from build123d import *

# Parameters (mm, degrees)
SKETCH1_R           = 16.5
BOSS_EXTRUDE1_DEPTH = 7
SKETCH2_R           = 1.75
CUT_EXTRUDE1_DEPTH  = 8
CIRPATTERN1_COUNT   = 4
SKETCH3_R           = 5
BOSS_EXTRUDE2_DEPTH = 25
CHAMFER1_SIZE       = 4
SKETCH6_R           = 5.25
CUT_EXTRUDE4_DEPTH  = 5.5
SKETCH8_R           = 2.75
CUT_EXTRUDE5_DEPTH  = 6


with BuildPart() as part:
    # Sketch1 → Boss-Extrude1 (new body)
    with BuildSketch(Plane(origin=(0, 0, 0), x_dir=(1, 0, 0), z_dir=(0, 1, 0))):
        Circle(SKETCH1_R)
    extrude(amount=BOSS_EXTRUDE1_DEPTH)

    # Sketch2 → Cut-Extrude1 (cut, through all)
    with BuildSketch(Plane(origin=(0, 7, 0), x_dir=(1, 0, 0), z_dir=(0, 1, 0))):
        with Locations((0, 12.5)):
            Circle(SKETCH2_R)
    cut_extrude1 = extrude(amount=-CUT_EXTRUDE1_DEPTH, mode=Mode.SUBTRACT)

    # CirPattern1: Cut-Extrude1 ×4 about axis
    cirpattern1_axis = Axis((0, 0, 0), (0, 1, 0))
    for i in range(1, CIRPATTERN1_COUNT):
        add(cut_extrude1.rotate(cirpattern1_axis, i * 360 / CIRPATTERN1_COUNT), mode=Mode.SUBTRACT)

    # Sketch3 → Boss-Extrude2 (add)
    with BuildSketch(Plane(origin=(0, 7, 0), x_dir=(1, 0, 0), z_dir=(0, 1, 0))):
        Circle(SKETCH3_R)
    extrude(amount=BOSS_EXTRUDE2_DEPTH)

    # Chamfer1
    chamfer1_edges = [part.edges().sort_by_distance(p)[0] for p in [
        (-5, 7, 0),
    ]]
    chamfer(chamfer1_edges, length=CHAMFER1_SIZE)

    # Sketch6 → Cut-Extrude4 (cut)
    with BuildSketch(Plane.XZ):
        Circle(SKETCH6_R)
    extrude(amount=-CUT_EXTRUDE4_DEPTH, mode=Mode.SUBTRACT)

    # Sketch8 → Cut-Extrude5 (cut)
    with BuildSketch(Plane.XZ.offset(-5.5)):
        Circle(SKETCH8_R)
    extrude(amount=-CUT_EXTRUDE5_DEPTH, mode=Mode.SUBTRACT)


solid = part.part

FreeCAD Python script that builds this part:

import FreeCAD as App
import Part
import Sketcher

V = App.Vector


def edges_at(feature, points):
    """Names of the edges that pass closest to the given points."""
    edges = feature.Shape.Edges
    near = lambda p: min(range(len(edges)), key=lambda i: edges[i].distToShape(Part.Vertex(*p))[0])
    return sorted({f"Edge{near(p) + 1}" for p in points})

doc = App.newDocument("Part")
body = doc.addObject("PartDesign::Body", "Body")

# Sketch on XZ plane
sketch1 = body.newObject("Sketcher::SketchObject", "Sketch")
sketch1.AttachmentSupport = (doc.getObject("XZ_Plane"), [""])
sketch1.MapMode = "FlatFace"
sketch1.addGeometry(Part.Circle(V(0, 0, 0), V(0, 0, 1), 16.5), False)
sketch1.addConstraint([
    Sketcher.Constraint("Coincident", 0, 3, -1, 1),
    Sketcher.Constraint("Diameter", 0, 33.0),
])
pad1 = body.newObject("PartDesign::Pad", "Pad")
pad1.Profile = sketch1
pad1.Length = 7
pad1.Reversed = True

# Sketch on XZ plane
sketch2 = body.newObject("Sketcher::SketchObject", "Sketch001")
sketch2.AttachmentSupport = (doc.getObject("XZ_Plane"), [""])
sketch2.MapMode = "FlatFace"
sketch2.AttachmentOffset = App.Placement(V(0, 0, -7), App.Rotation())
sketch2.addGeometry(Part.Circle(V(0, -12.5, 0), V(0, 0, 1), 1.75), False)
sketch2.addConstraint([
    Sketcher.Constraint("PointOnObject", 0, 3, -2),
    Sketcher.Constraint("Diameter", 0, 3.5),
    Sketcher.Constraint("DistanceY", 0, 3, -1, 1, 12.5),
])
pocket1 = body.newObject("PartDesign::Pocket", "Pocket")
pocket1.Profile = sketch2
pocket1.Type = "ThroughAll"
pocket1.Reversed = True
doc.recompute()

polarpattern = body.newObject("PartDesign::PolarPattern", "PolarPattern")
polarpattern.Originals = [pocket1]
polarpattern.Axis = (doc.getObject("Y_Axis"), [""])
polarpattern.Angle = 360
polarpattern.Occurrences = 4
body.Tip = polarpattern

# Sketch on XZ plane
sketch3 = body.newObject("Sketcher::SketchObject", "Sketch002")
sketch3.AttachmentSupport = (doc.getObject("XZ_Plane"), [""])
sketch3.MapMode = "FlatFace"
sketch3.AttachmentOffset = App.Placement(V(0, 0, -7), App.Rotation())
sketch3.addGeometry(Part.Circle(V(0, 0, 0), V(0, 0, 1), 5), False)
sketch3.addConstraint([
    Sketcher.Constraint("Coincident", 0, 3, -1, 1),
    Sketcher.Constraint("Diameter", 0, 10.0),
])
pad2 = body.newObject("PartDesign::Pad", "Pad001")
pad2.Profile = sketch3
pad2.Length = 25
pad2.Reversed = True
doc.recompute()

chamfer = body.newObject("PartDesign::Chamfer", "Chamfer")
chamfer.Base = (pad2, edges_at(pad2, [(-5, 7, 0)]))
chamfer.Size = 4

# Sketch on XZ plane
sketch4 = body.newObject("Sketcher::SketchObject", "Sketch003")
sketch4.AttachmentSupport = (doc.getObject("XZ_Plane"), [""])
sketch4.MapMode = "FlatFace"
sketch4.addGeometry(Part.Circle(V(0, 0, 0), V(0, 0, 1), 5.25), False)
sketch4.addConstraint([
    Sketcher.Constraint("Coincident", 0, 3, -1, 1),
    Sketcher.Constraint("Diameter", 0, 10.5),
])
pocket2 = body.newObject("PartDesign::Pocket", "Pocket001")
pocket2.Profile = sketch4
pocket2.Length = 5.5

# Sketch on XZ plane
sketch5 = body.newObject("Sketcher::SketchObject", "Sketch004")
sketch5.AttachmentSupport = (doc.getObject("XZ_Plane"), [""])
sketch5.MapMode = "FlatFace"
sketch5.AttachmentOffset = App.Placement(V(0, 0, -5.5), App.Rotation())
sketch5.addGeometry(Part.Circle(V(0, 0, 0), V(0, 0, 1), 2.75), False)
sketch5.addConstraint([
    Sketcher.Constraint("Coincident", 0, 3, -1, 1),
    Sketcher.Constraint("Diameter", 0, 5.5),
])
pocket3 = body.newObject("PartDesign::Pocket", "Pocket002")
pocket3.Profile = sketch5
pocket3.Length = 6

doc.recompute()
